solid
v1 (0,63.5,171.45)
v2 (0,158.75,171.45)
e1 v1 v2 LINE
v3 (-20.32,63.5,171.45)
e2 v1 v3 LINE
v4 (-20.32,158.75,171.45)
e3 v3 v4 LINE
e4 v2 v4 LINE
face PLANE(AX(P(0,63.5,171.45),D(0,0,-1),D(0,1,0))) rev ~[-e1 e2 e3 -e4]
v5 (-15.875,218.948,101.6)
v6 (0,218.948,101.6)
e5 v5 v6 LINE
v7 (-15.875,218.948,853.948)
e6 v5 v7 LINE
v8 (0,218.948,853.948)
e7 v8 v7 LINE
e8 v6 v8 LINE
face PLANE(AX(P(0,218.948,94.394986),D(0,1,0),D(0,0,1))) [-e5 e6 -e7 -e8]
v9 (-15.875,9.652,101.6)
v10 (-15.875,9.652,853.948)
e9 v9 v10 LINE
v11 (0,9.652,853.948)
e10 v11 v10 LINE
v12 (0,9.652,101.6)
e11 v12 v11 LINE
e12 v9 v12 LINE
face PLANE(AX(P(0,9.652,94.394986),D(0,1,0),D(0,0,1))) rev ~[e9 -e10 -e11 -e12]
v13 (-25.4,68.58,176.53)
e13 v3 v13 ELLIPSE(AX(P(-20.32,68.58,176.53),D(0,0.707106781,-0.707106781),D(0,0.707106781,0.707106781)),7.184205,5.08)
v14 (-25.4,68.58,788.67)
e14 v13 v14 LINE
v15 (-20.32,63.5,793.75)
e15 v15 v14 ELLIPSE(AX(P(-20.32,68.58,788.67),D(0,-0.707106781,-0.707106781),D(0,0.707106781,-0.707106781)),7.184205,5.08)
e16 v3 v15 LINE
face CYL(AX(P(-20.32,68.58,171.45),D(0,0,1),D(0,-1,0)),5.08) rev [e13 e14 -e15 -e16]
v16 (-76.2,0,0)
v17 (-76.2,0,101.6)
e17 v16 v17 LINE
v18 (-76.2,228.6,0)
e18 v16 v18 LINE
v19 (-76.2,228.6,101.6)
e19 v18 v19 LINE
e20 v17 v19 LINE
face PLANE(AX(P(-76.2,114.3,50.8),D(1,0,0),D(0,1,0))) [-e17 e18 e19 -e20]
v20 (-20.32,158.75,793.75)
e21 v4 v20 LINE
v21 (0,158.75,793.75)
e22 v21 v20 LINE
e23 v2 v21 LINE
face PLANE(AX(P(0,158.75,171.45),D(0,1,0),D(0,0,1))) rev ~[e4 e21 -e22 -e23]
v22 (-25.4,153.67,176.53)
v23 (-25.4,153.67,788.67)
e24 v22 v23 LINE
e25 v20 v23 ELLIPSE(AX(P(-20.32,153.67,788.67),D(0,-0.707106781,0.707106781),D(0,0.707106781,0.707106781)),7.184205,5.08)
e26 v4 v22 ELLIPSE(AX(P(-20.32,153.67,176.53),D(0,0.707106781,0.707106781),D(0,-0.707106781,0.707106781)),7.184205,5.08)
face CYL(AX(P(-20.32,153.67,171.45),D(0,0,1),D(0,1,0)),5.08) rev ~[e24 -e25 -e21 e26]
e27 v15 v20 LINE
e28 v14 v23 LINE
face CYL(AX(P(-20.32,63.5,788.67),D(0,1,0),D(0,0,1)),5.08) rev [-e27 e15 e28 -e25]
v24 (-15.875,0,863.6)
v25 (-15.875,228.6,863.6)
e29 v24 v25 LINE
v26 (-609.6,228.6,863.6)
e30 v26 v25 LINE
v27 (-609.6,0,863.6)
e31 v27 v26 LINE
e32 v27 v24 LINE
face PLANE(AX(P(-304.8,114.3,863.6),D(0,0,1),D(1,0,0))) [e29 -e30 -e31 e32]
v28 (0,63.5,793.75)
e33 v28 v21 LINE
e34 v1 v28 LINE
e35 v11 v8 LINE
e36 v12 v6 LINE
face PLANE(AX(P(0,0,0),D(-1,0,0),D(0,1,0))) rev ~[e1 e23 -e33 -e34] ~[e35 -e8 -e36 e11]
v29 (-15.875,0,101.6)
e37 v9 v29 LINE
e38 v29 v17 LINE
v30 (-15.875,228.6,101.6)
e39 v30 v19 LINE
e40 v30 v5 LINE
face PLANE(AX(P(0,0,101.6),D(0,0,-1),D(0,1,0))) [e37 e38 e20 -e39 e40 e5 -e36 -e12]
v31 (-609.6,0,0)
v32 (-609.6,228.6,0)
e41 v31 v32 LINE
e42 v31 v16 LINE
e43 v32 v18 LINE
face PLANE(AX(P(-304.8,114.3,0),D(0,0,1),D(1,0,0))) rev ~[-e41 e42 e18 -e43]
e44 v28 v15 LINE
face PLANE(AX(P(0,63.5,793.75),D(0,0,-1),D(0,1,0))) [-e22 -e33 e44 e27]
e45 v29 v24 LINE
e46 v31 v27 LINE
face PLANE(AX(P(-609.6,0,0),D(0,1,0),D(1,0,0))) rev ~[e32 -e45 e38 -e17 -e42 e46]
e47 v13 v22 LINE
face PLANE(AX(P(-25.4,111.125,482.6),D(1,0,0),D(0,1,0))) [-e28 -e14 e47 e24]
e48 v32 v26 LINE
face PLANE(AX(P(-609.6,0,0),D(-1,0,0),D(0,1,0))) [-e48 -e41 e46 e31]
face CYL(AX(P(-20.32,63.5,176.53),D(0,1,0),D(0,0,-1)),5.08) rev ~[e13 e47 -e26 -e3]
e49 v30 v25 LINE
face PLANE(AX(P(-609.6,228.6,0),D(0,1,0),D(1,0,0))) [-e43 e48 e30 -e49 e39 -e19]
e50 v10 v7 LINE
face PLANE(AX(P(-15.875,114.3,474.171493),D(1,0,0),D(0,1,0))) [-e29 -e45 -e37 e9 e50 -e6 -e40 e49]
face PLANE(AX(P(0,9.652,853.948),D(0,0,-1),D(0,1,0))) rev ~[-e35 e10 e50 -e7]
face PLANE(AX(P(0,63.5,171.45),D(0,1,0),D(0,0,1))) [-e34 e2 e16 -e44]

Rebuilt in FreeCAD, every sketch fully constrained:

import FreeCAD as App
import Part
import Sketcher

V = App.Vector
Q = App.Units.Quantity


def edges_at(feature, points):
    """Names of the edges that pass closest to the given points."""
    edges = feature.Shape.Edges
    near = lambda p: min(range(len(edges)), key=lambda i: edges[i].distToShape(Part.Vertex(*p))[0])
    return sorted({f"Edge{near(p) + 1}" for p in points})

doc = App.newDocument("Part")
params = doc.addObject("Spreadsheet::Sheet", "Params")
for row, (alias, value) in enumerate([
    ("sketch1_width", "24 in"),
    ("sketch1_height", "9 in"),
    ("pad1_length", "34 in"),
    ("sketch2_height", "24.5 in"),
    ("sketch2_width", "3.75 in"),
    ("pocket1_length", "1 in"),
    ("fillet_radius", "0.2 in"),
    ("sketch3_width", "9 in"),
    ("sketch3_height", "4 in"),
    ("pocket2_length", "3 in"),
    ("sketch4_width", "9 in"),
    ("sketch4_width2", "8.24 in"),
    ("pocket3_length", "0.625 in"),
], start=1):
    params.set(f"A{row}", alias)
    params.set(f"B{row}", "=" + value)
    params.setAlias(f"B{row}", alias)

body = doc.addObject("PartDesign::Body", "Body")

sketch1 = doc.addObject("Sketcher::SketchObject", "Sketch")
body.addObject(sketch1)
sketch1.AttachmentSupport = (doc.XY_Plane, [""])
sketch1.MapMode = "FlatFace"
sketch1.addGeometry(Part.LineSegment(V(-609.6, 228.6, 0), V(-609.6, 0, 0)), False)
sketch1.addGeometry(Part.LineSegment(V(-609.6, 0, 0), V(0, 0, 0)), False)
sketch1.addGeometry(Part.LineSegment(V(0, 0, 0), V(0, 228.6, 0)), False)
sketch1.addGeometry(Part.LineSegment(V(0, 228.6, 0), V(-609.6, 228.6, 0)), False)
sketch1.addConstraint(Sketcher.Constraint("Coincident", 0, 2, 1, 1))
sketch1.addConstraint(Sketcher.Constraint("Coincident", 1, 2, 2, 1))
sketch1.addConstraint(Sketcher.Constraint("Coincident", 2, 2, 3, 1))
sketch1.addConstraint(Sketcher.Constraint("Coincident", 3, 2, 0, 1))
sketch1.addConstraint(Sketcher.Constraint("Vertical", 0))
sketch1.addConstraint(Sketcher.Constraint("Horizontal", 1))
sketch1.addConstraint(Sketcher.Constraint("Vertical", 2))
sketch1.addConstraint(Sketcher.Constraint("Horizontal", 3))
sketch1.addConstraint(Sketcher.Constraint("Coincident", 1, 2, -1, 1))
sketch1.addConstraint(Sketcher.Constraint("DistanceX", 1, 1, 1, 2, Q("24 in")))
sketch1.addConstraint(Sketcher.Constraint("DistanceY", 0, 2, 0, 1, Q("9 in")))
sketch1.setExpression("Constraints[9]", "Params.sketch1_width")
sketch1.setExpression("Constraints[10]", "Params.sketch1_height")
pad1 = doc.addObject("PartDesign::Pad", "Pad")
body.addObject(pad1)
pad1.Profile = sketch1
pad1.setExpression("Length", "Params.pad1_length")

sketch2 = doc.addObject("Sketcher::SketchObject", "Sketch001")
body.addObject(sketch2)
sketch2.AttachmentSupport = (doc.YZ_Plane, [""])
sketch2.MapMode = "FlatFace"
sketch2.addGeometry(Part.LineSegment(V(63.5, 793.75, 0), V(63.5, 171.45, 0)), False)
sketch2.addGeometry(Part.LineSegment(V(63.5, 171.45, 0), V(158.75, 171.45, 0)), False)
sketch2.addGeometry(Part.LineSegment(V(158.75, 171.45, 0), V(158.75, 793.75, 0)), False)
sketch2.addGeometry(Part.LineSegment(V(158.75, 793.75, 0), V(63.5, 793.75, 0)), False)
sketch2.addConstraint(Sketcher.Constraint("Coincident", 0, 2, 1, 1))
sketch2.addConstraint(Sketcher.Constraint("Coincident", 1, 2, 2, 1))
sketch2.addConstraint(Sketcher.Constraint("Coincident", 2, 2, 3, 1))
sketch2.addConstraint(Sketcher.Constraint("Coincident", 3, 2, 0, 1))
sketch2.addConstraint(Sketcher.Constraint("Vertical", 0))
sketch2.addConstraint(Sketcher.Constraint("Horizontal", 1))
sketch2.addConstraint(Sketcher.Constraint("Vertical", 2))
sketch2.addConstraint(Sketcher.Constraint("Horizontal", 3))
sketch2.addConstraint(Sketcher.Constraint("DistanceY", 0, 2, 0, 1, Q("24.5 in")))
sketch2.addConstraint(Sketcher.Constraint("DistanceX", 1, 1, 1, 2, Q("3.75 in")))
sketch2.addConstraint(Sketcher.Constraint("DistanceX", -1, 1, 0, 2, Q("2.5 in")))
sketch2.addConstraint(Sketcher.Constraint("DistanceY", -1, 1, 0, 2, Q("6.75 in")))
sketch2.setExpression("Constraints[8]", "Params.sketch2_height")
sketch2.setExpression("Constraints[9]", "Params.sketch2_width")
pocket1 = doc.addObject("PartDesign::Pocket", "Pocket")
body.addObject(pocket1)
pocket1.Profile = sketch2
pocket1.setExpression("Length", "Params.pocket1_length")
doc.recompute()

fillet = doc.addObject("PartDesign::Fillet", "Fillet")
body.addObject(fillet)
fillet.Base = (pocket1, edges_at(pocket1, [
    (-25.4, 158.75, 482.6),
    (-25.4, 111.125, 793.75),
    (-25.4, 63.5, 482.6),
    (-25.4, 111.125, 171.45),
]))
fillet.setExpression("Radius", "Params.fillet_radius")

sketch3 = doc.addObject("Sketcher::SketchObject", "Sketch002")
body.addObject(sketch3)
sketch3.AttachmentSupport = (doc.YZ_Plane, [""])
sketch3.MapMode = "FlatFace"
sketch3.addGeometry(Part.LineSegment(V(0, 101.6, 0), V(0, 0, 0)), False)
sketch3.addGeometry(Part.LineSegment(V(0, 0, 0), V(228.6, 0, 0)), False)
sketch3.addGeometry(Part.LineSegment(V(228.6, 0, 0), V(228.6, 101.6, 0)), False)
sketch3.addGeometry(Part.LineSegment(V(228.6, 101.6, 0), V(0, 101.6, 0)), False)
sketch3.addConstraint(Sketcher.Constraint("Coincident", 0, 2, 1, 1))
sketch3.addConstraint(Sketcher.Constraint("Coincident", 1, 2, 2, 1))
sketch3.addConstraint(Sketcher.Constraint("Coincident", 2, 2, 3, 1))
sketch3.addConstraint(Sketcher.Constraint("Coincident", 3, 2, 0, 1))
sketch3.addConstraint(Sketcher.Constraint("Vertical", 0))
sketch3.addConstraint(Sketcher.Constraint("Horizontal", 1))
sketch3.addConstraint(Sketcher.Constraint("Vertical", 2))
sketch3.addConstraint(Sketcher.Constraint("Horizontal", 3))
sketch3.addConstraint(Sketcher.Constraint("Coincident", 0, 2, -1, 1))
sketch3.addConstraint(Sketcher.Constraint("DistanceX", 1, 1, 1, 2, Q("9 in")))
sketch3.addConstraint(Sketcher.Constraint("DistanceY", 0, 2, 0, 1, Q("4 in")))
sketch3.setExpression("Constraints[9]", "Params.sketch3_width")
sketch3.setExpression("Constraints[10]", "Params.sketch3_height")
pocket2 = doc.addObject("PartDesign::Pocket", "Pocket001")
body.addObject(pocket2)
pocket2.Profile = sketch3
pocket2.setExpression("Length", "Params.pocket2_length")

sketch4 = doc.addObject("Sketcher::SketchObject", "Sketch003")
body.addObject(sketch4)
sketch4.AttachmentSupport = (doc.YZ_Plane, [""])
sketch4.MapMode = "FlatFace"
sketch4.addGeometry(Part.LineSegment(V(0, 863.6, 0), V(0, 84.742986, 0)), False)
sketch4.addGeometry(Part.LineSegment(V(0, 84.742986, 0), V(228.6, 84.742986, 0)), False)
sketch4.addGeometry(Part.LineSegment(V(228.6, 84.742986, 0), V(228.6, 863.6, 0)), False)
sketch4.addGeometry(Part.LineSegment(V(228.6, 863.6, 0), V(0, 863.6, 0)), False)
sketch4.addGeometry(Part.LineSegment(V(218.948, 94.394986, 0), V(9.652, 94.394986, 0)), False)
sketch4.addGeometry(Part.LineSegment(V(9.652, 94.394986, 0), V(9.652, 853.948, 0)), False)
sketch4.addGeometry(Part.LineSegment(V(9.652, 853.948, 0), V(218.948, 853.948, 0)), False)
sketch4.addGeometry(Part.LineSegment(V(218.948, 853.948, 0), V(218.948, 94.394986, 0)), False)
sketch4.addConstraint(Sketcher.Constraint("Coincident", 0, 2, 1, 1))
sketch4.addConstraint(Sketcher.Constraint("Coincident", 1, 2, 2, 1))
sketch4.addConstraint(Sketcher.Constraint("Coincident", 2, 2, 3, 1))
sketch4.addConstraint(Sketcher.Constraint("Coincident", 3, 2, 0, 1))
sketch4.addConstraint(Sketcher.Constraint("Coincident", 4, 2, 5, 1))
sketch4.addConstraint(Sketcher.Constraint("Coincident", 5, 2, 6, 1))
sketch4.addConstraint(Sketcher.Constraint("Coincident", 6, 2, 7, 1))
sketch4.addConstraint(Sketcher.Constraint("Coincident", 7, 2, 4, 1))
sketch4.addConstraint(Sketcher.Constraint("Vertical", 0))
sketch4.addConstraint(Sketcher.Constraint("Horizontal", 1))
sketch4.addConstraint(Sketcher.Constraint("Vertical", 2))
sketch4.addConstraint(Sketcher.Constraint("Horizontal", 3))
sketch4.addConstraint(Sketcher.Constraint("Horizontal", 4))
sketch4.addConstraint(Sketcher.Constraint("Vertical", 5))
sketch4.addConstraint(Sketcher.Constraint("Horizontal", 6))
sketch4.addConstraint(Sketcher.Constraint("Vertical", 7))
sketch4.addConstraint(Sketcher.Constraint("PointOnObject", 0, 2, -2))
sketch4.addConstraint(Sketcher.Constraint("DistanceX", 1, 1, 1, 2, Q("9 in")))
sketch4.addConstraint(Sketcher.Constraint("DistanceY", -1, 1, 2, 2, Q("34 in")))
sketch4.addConstraint(Sketcher.Constraint("DistanceX", 4, 2, 4, 1, Q("8.24 in")))
sketch4.addConstraint(Sketcher.Constraint("DistanceX", -1, 1, 4, 2, Q("0.38 in")))
sketch4.addConstraint(Sketcher.Constraint("DistanceY", -1, 1, 5, 2, Q("33.62 in")))
sketch4.addConstraint(Sketcher.Constraint("DistanceY", 0, 2, 4, 2, Q("0.38 in")))
sketch4.addConstraint(Sketcher.Constraint("DistanceY", 0, 2, 0, 1, 778.857014))
sketch4.setExpression("Constraints[17]", "Params.sketch4_width")
sketch4.setExpression("Constraints[19]", "Params.sketch4_width2")
pocket3 = doc.addObject("PartDesign::Pocket", "Pocket002")
body.addObject(pocket3)
pocket3.Profile = sketch4
pocket3.setExpression("Length", "Params.pocket3_length")

doc.recompute()
